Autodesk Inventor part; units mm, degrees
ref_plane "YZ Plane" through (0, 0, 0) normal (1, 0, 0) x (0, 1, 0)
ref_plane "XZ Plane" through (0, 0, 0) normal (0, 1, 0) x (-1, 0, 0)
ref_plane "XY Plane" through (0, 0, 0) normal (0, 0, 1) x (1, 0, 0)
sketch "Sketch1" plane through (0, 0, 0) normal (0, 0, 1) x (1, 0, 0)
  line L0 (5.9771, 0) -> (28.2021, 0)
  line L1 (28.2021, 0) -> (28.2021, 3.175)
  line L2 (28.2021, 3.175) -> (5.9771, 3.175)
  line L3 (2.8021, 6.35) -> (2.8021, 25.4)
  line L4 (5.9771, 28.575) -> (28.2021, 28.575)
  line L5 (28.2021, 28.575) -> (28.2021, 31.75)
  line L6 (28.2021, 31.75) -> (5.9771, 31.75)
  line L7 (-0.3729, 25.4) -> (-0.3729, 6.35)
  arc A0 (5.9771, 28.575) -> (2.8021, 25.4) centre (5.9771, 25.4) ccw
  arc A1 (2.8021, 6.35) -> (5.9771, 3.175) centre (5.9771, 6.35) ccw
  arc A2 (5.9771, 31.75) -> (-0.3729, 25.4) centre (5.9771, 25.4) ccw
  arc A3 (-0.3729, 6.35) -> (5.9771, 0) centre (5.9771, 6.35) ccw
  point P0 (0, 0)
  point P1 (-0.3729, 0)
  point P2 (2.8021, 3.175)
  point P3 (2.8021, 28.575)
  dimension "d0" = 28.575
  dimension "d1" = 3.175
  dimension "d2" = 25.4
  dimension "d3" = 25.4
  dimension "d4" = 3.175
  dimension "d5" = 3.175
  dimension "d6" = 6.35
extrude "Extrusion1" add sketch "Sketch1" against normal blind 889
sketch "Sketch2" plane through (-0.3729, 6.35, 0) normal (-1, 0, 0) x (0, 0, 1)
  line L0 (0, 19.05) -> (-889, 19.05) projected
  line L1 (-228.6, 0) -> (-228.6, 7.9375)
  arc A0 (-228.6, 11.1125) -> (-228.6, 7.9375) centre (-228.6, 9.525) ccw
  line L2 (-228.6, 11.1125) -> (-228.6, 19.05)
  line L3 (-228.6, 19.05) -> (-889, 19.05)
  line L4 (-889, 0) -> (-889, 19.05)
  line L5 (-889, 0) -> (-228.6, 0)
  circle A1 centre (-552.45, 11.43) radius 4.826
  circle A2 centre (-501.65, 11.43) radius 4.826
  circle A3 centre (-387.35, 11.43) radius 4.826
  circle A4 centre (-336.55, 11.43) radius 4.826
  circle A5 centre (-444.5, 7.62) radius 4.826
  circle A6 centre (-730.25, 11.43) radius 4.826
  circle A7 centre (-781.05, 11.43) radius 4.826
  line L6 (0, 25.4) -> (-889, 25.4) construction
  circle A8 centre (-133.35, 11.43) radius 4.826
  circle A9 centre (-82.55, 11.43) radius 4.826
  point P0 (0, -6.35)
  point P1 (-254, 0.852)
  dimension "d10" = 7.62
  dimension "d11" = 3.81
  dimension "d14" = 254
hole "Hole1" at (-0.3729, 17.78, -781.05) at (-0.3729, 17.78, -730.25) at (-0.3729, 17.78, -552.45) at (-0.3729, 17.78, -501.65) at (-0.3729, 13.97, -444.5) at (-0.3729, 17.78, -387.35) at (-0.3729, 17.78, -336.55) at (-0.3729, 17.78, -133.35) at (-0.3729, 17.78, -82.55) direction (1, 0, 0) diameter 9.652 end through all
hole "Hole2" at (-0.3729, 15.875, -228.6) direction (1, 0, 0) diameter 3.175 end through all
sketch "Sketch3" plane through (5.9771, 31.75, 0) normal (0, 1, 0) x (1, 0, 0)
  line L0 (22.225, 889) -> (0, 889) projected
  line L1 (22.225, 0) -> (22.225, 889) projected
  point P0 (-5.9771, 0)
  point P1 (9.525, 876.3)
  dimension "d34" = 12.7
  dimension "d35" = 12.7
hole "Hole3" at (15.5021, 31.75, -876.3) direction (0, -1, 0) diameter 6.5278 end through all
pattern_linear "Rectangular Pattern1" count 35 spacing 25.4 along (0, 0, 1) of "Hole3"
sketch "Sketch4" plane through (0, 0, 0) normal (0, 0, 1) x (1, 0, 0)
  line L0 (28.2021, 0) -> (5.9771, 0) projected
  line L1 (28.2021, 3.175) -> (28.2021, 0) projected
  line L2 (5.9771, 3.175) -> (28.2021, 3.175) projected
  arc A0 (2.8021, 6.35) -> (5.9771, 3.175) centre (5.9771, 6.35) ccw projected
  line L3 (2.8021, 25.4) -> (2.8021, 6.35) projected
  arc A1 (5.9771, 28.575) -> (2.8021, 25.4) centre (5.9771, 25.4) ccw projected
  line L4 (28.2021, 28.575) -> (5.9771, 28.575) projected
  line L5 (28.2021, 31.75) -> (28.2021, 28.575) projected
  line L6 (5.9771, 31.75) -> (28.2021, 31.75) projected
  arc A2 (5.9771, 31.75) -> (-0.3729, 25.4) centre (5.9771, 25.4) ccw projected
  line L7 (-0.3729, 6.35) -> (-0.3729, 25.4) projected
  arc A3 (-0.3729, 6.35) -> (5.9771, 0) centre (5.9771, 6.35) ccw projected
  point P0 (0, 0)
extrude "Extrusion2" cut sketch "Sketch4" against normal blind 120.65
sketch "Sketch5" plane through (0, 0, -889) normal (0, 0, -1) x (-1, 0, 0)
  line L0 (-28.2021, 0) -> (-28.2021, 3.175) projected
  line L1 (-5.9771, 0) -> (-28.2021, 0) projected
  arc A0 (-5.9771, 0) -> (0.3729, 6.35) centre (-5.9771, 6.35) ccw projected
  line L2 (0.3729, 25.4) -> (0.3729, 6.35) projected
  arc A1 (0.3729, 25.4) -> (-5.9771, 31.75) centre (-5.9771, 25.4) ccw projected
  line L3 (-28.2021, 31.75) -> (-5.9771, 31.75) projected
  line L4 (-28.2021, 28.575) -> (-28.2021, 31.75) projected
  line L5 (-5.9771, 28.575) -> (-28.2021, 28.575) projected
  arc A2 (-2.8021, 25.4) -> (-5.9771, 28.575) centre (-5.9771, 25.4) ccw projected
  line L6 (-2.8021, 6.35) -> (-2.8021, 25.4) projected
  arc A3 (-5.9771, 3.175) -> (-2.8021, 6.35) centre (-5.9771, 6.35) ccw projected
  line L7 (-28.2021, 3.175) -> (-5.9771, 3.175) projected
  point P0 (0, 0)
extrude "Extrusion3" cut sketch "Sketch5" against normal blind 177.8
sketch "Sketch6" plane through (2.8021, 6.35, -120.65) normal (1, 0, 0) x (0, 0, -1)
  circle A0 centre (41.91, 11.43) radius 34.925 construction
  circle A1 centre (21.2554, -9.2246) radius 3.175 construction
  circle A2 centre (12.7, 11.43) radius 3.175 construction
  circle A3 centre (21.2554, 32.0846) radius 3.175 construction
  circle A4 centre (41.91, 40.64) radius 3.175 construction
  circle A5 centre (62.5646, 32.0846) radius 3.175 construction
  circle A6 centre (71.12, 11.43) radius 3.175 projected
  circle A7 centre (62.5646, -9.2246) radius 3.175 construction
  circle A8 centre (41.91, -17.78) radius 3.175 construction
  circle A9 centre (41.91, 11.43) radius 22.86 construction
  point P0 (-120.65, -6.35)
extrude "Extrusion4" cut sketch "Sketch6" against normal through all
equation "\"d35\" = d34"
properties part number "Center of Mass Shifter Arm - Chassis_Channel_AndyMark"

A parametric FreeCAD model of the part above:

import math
import FreeCAD as App
import Part
import Sketcher
from FreeCAD import Vector
Q = App.Units.Quantity

doc = App.newDocument("Part")
body = doc.addObject("PartDesign::Body", "Body")

# Sketch on XY plane
sketch1 = body.newObject("Sketcher::SketchObject", "Sketch")
sketch1.AttachmentSupport = (doc.getObject("XY_Plane"), [""])
sketch1.MapMode = "FlatFace"
sketch1.addGeometry([
    Part.ArcOfCircle(Part.Circle(Vector(5.9771, 6.35, 0), Vector(0, 0, 1), 6.35), math.radians(180), math.radians(270)),  # 0
    Part.LineSegment(Vector(5.9771, 0, 0), Vector(28.2021, 0, 0)),  # 1
    Part.LineSegment(Vector(28.2021, 0, 0), Vector(28.2021, 3.175, 0)),  # 2
    Part.LineSegment(Vector(28.2021, 3.175, 0), Vector(5.9771, 3.175, 0)),  # 3
    Part.ArcOfCircle(Part.Circle(Vector(5.9771, 6.35, 0), Vector(0, 0, 1), 3.175), math.radians(180), math.radians(270)),  # 4
    Part.LineSegment(Vector(2.8021, 6.35, 0), Vector(2.8021, 25.4, 0)),  # 5
    Part.ArcOfCircle(Part.Circle(Vector(5.9771, 25.4, 0), Vector(0, 0, 1), 3.175), math.radians(90), math.radians(180)),  # 6
    Part.LineSegment(Vector(5.9771, 28.575, 0), Vector(28.2021, 28.575, 0)),  # 7
    Part.LineSegment(Vector(28.2021, 28.575, 0), Vector(28.2021, 31.75, 0)),  # 8
    Part.LineSegment(Vector(28.2021, 31.75, 0), Vector(5.9771, 31.75, 0)),  # 9
    Part.ArcOfCircle(Part.Circle(Vector(5.9771, 25.4, 0), Vector(0, 0, 1), 6.35), math.radians(90), math.radians(180)),  # 10
    Part.LineSegment(Vector(-0.3729, 25.4, 0), Vector(-0.3729, 6.35, 0)),  # 11
], False)
sketch1.addConstraint([
    Sketcher.Constraint("Tangent", 0, 2, 1, 1),
    Sketcher.Constraint("Coincident", 1, 2, 2, 1),
    Sketcher.Constraint("Coincident", 2, 2, 3, 1),
    Sketcher.Constraint("Tangent", 3, 2, 4, 2),
    Sketcher.Constraint("Tangent", 4, 1, 5, 1),
    Sketcher.Constraint("Tangent", 5, 2, 6, 2),
    Sketcher.Constraint("Tangent", 6, 1, 7, 1),
    Sketcher.Constraint("Coincident", 7, 2, 8, 1),
    Sketcher.Constraint("Coincident", 8, 2, 9, 1),
    Sketcher.Constraint("Tangent", 9, 2, 10, 1),
    Sketcher.Constraint("Tangent", 10, 2, 11, 1),
    Sketcher.Constraint("Tangent", 11, 2, 0, 1),
    Sketcher.Constraint("Horizontal", 1),
    Sketcher.Constraint("Vertical", 2),
    Sketcher.Constraint("Horizontal", 3),
    Sketcher.Constraint("Vertical", 5),
    Sketcher.Constraint("Horizontal", 7),
    Sketcher.Constraint("Vertical", 8),
    Sketcher.Constraint("Horizontal", 9),
    Sketcher.Constraint("Vertical", 11),
    Sketcher.Constraint("Coincident", 4, 3, 0, 3),
    Sketcher.Constraint("Coincident", 10, 3, 6, 3),
    Sketcher.Constraint("Equal", 4, 6),
    Sketcher.Constraint("PointOnObject", 0, 2, -1),
    Sketcher.Constraint("Vertical", 2, 2, 7, 2),
    Sketcher.Constraint("Radius", 0, Q("0.25 in")),
    Sketcher.Constraint("DistanceY", -1, 1, 6, 3, Q("1 in")),
    Sketcher.Constraint("Radius", 4, Q("0.125 in")),
    Sketcher.Constraint("DistanceX", 5, 2, 7, 2, Q("1 in")),
    Sketcher.Constraint("DistanceX", -1, 1, 0, 3, Q("5.977 mm")),
])
pad1 = body.newObject("PartDesign::Pad", "Pad")
pad1.Profile = sketch1
pad1.Length = Q("35 in")
pad1.Reversed = True

# Sketch on YZ plane
sketch2 = body.newObject("Sketcher::SketchObject", "Sketch001")
sketch2.AttachmentSupport = (doc.getObject("YZ_Plane"), [""])
sketch2.MapMode = "FlatFace"
sketch2.AttachmentOffset = App.Placement(Vector(0, 0, -0.3729), App.Rotation())
sketch2.addGeometry([
    Part.Circle(Vector(17.78, -781.05, 0), Vector(0, 0, 1), 4.826),  # 0
    Part.Circle(Vector(17.78, -730.25, 0), Vector(0, 0, 1), 4.826),  # 1
    Part.Circle(Vector(17.78, -552.45, 0), Vector(0, 0, 1), 4.826),  # 2
    Part.Circle(Vector(17.78, -501.65, 0), Vector(0, 0, 1), 4.826),  # 3
    Part.Circle(Vector(13.97, -444.5, 0), Vector(0, 0, 1), 4.826),  # 4
    Part.Circle(Vector(17.78, -387.35, 0), Vector(0, 0, 1), 4.826),  # 5
    Part.Circle(Vector(17.78, -336.55, 0), Vector(0, 0, 1), 4.826),  # 6
    Part.Circle(Vector(17.78, -133.35, 0), Vector(0, 0, 1), 4.826),  # 7
    Part.Circle(Vector(17.78, -82.55, 0), Vector(0, 0, 1), 4.826),  # 8
], False)
sketch2.addConstraint([
    Sketcher.Constraint("Equal", 0, 1),
    Sketcher.Constraint("Equal", 1, 2),
    Sketcher.Constraint("Equal", 2, 3),
    Sketcher.Constraint("Equal", 3, 4),
    Sketcher.Constraint("Equal", 4, 5),
    Sketcher.Constraint("Equal", 5, 6),
    Sketcher.Constraint("Equal", 6, 7),
    Sketcher.Constraint("Equal", 7, 8),
    Sketcher.Constraint("Vertical", 0, 3, 1, 3),
    Sketcher.Constraint("Vertical", 1, 3, 2, 3),
    Sketcher.Constraint("Vertical", 2, 3, 3, 3),
    Sketcher.Constraint("Vertical", 3, 3, 5, 3),
    Sketcher.Constraint("Vertical", 5, 3, 6, 3),
    Sketcher.Constraint("Vertical", 6, 3, 7, 3),
    Sketcher.Constraint("Vertical", 7, 3, 8, 3),
    Sketcher.Constraint("Diameter", 0, Q("0.38 in")),
    Sketcher.Constraint("DistanceY", 0, 3, 1, 3, Q("2 in")),
    Sketcher.Constraint("DistanceY", 1, 3, 2, 3, Q("7 in")),
    Sketcher.Constraint("DistanceY", 2, 3, 3, 3, Q("2 in")),
    Sketcher.Constraint("DistanceY", 5, 3, 6, 3, Q("2 in")),
    Sketcher.Constraint("DistanceY", 6, 3, 7, 3, Q("8 in")),
    Sketcher.Constraint("DistanceY", 7, 3, 8, 3, Q("2 in")),
    Sketcher.Constraint("DistanceX", -1, 1, 0, 3, Q("0.7 in")),
    Sketcher.Constraint("DistanceY", 4, 3, -1, 1, Q("17.5 in")),
    Sketcher.Constraint("DistanceY", 3, 3, 5, 3, Q("4.5 in")),
    Sketcher.Constraint("DistanceY", 0, 3, -1, 1, Q("30.75 in")),
    Sketcher.Constraint("DistanceX", -1, 1, 4, 3, Q("0.55 in")),
])
doc.recompute()
hole = body.newObject("PartDesign::Hole", "Hole")
hole.Profile = sketch2
hole.ThreadType = "None"
hole.Diameter = Q("0.38 in")
hole.DepthType = "ThroughAll"
hole.Reversed = True

# Sketch on YZ plane
sketch3 = body.newObject("Sketcher::SketchObject", "Sketch002")
sketch3.AttachmentSupport = (doc.getObject("YZ_Plane"), [""])
sketch3.MapMode = "FlatFace"
sketch3.AttachmentOffset = App.Placement(Vector(0, 0, -0.3729), App.Rotation())
sketch3.addGeometry(Part.Circle(Vector(15.875, -228.6, 0), Vector(0, 0, 1), 1.5875), False)
sketch3.addConstraint([
    Sketcher.Constraint("Diameter", 0, Q("0.125 in")),
    Sketcher.Constraint("DistanceY", 0, 3, -1, 1, Q("9 in")),
    Sketcher.Constraint("DistanceX", -1, 1, 0, 3, Q("0.625 in")),
])
doc.recompute()
hole2 = body.newObject("PartDesign::Hole", "Hole001")
hole2.Profile = sketch3
hole2.ThreadType = "None"
hole2.Diameter = Q("0.125 in")
hole2.DepthType = "ThroughAll"
hole2.Reversed = True

# Sketch on XZ plane
sketch4 = body.newObject("Sketcher::SketchObject", "Sketch003")
sketch4.AttachmentSupport = (doc.getObject("XZ_Plane"), [""])
sketch4.MapMode = "FlatFace"
sketch4.AttachmentOffset = App.Placement(Vector(0, 0, -1.25 * 25.4), App.Rotation())
sketch4.addGeometry(Part.Circle(Vector(15.5021, -876.3, 0), Vector(0, 0, 1), 3.2639), False)
sketch4.addConstraint([
    Sketcher.Constraint("Diameter", 0, Q("0.257 in")),
    Sketcher.Constraint("DistanceY", 0, 3, -1, 1, Q("34.5 in")),
    Sketcher.Constraint("DistanceX", -1, 1, 0, 3, Q("15.502 mm")),
])
doc.recompute()
hole3 = body.newObject("PartDesign::Hole", "Hole002")
hole3.Profile = sketch4
hole3.ThreadType = "None"
hole3.Diameter = Q("0.257 in")
hole3.DepthType = "ThroughAll"
hole3.Reversed = True
doc.recompute()

linearpattern = body.newObject("PartDesign::LinearPattern", "LinearPattern")
linearpattern.Originals = [hole3]
linearpattern.Direction = (doc.getObject("Z_Axis"), [""])
linearpattern.Mode = "offset"
linearpattern.Offset = Q("1 in")
linearpattern.Occurrences = 35
body.Tip = linearpattern

# Sketch on XY plane
sketch5 = body.newObject("Sketcher::SketchObject", "Sketch004")
sketch5.AttachmentSupport = (doc.getObject("XY_Plane"), [""])
sketch5.MapMode = "FlatFace"
sketch5.addGeometry([
    Part.LineSegment(Vector(5.9771, 0, 0), Vector(28.2021, 0, 0)),  # 0
    Part.LineSegment(Vector(28.2021, 0, 0), Vector(28.2021, 3.175, 0)),  # 1
    Part.LineSegment(Vector(28.2021, 3.175, 0), Vector(5.9771, 3.175, 0)),  # 2
    Part.ArcOfCircle(Part.Circle(Vector(5.9771, 6.35, 0), Vector(0, 0, 1), 3.175), math.radians(180), math.radians(270)),  # 3
    Part.LineSegment(Vector(2.8021, 6.35, 0), Vector(2.8021, 25.4, 0)),  # 4
    Part.ArcOfCircle(Part.Circle(Vector(5.9771, 25.4, 0), Vector(0, 0, 1), 3.175), math.radians(90), math.radians(180)),  # 5
    Part.LineSegment(Vector(5.9771, 28.575, 0), Vector(28.2021, 28.575, 0)),  # 6
    Part.LineSegment(Vector(28.2021, 28.575, 0), Vector(28.2021, 31.75, 0)),  # 7
    Part.LineSegment(Vector(28.2021, 31.75, 0), Vector(5.9771, 31.75, 0)),  # 8
    Part.ArcOfCircle(Part.Circle(Vector(5.9771, 25.4, 0), Vector(0, 0, 1), 6.35), math.radians(90), math.radians(180)),  # 9
    Part.LineSegment(Vector(-0.3729, 25.4, 0), Vector(-0.3729, 6.35, 0)),  # 10
    Part.ArcOfCircle(Part.Circle(Vector(5.9771, 6.35, 0), Vector(0, 0, 1), 6.35), math.radians(180), math.radians(270)),  # 11
], False)
sketch5.addConstraint([
    Sketcher.Constraint("Coincident", 0, 2, 1, 1),
    Sketcher.Constraint("Coincident", 1, 2, 2, 1),
    Sketcher.Constraint("Tangent", 2, 2, 3, 2),
    Sketcher.Constraint("Tangent", 3, 1, 4, 1),
    Sketcher.Constraint("Tangent", 4, 2, 5, 2),
    Sketcher.Constraint("Tangent", 5, 1, 6, 1),
    Sketcher.Constraint("Coincident", 6, 2, 7, 1),
    Sketcher.Constraint("Coincident", 7, 2, 8, 1),
    Sketcher.Constraint("Tangent", 8, 2, 9, 1),
    Sketcher.Constraint("Tangent", 9, 2, 10, 1),
    Sketcher.Constraint("Tangent", 10, 2, 11, 1),
    Sketcher.Constraint("Tangent", 11, 2, 0, 1),
    Sketcher.Constraint("Horizontal", 0),
    Sketcher.Constraint("Vertical", 1),
    Sketcher.Constraint("Horizontal", 2),
    Sketcher.Constraint("Vertical", 4),
    Sketcher.Constraint("Horizontal", 6),
    Sketcher.Constraint("Vertical", 7),
    Sketcher.Constraint("Horizontal", 8),
    Sketcher.Constraint("Vertical", 10),
    Sketcher.Constraint("Coincident", 9, 3, 5, 3),
    Sketcher.Constraint("Coincident", 11, 3, 3, 3),
    Sketcher.Constraint("Equal", 3, 5),
    Sketcher.Constraint("PointOnObject", 0, 2, -1),
    Sketcher.Constraint("Vertical", 1, 2, 6, 2),
    Sketcher.Constraint("Radius", 9, Q("0.25 in")),
    Sketcher.Constraint("DistanceY", -1, 1, 5, 3, Q("1 in")),
    Sketcher.Constraint("Radius", 3, Q("0.125 in")),
    Sketcher.Constraint("DistanceX", 4, 2, 6, 2, Q("1 in")),
    Sketcher.Constraint("DistanceX", -1, 1, 3, 3, Q("5.977 mm")),
])
pocket1 = body.newObject("PartDesign::Pocket", "Pocket")
pocket1.Profile = sketch5
pocket1.Length = Q("4.75 in")

# Sketch on XY plane
sketch6 = body.newObject("Sketcher::SketchObject", "Sketch005")
sketch6.AttachmentSupport = (doc.getObject("XY_Plane"), [""])
sketch6.MapMode = "FlatFace"
sketch6.AttachmentOffset = App.Placement(Vector(0, 0, -35 * 25.4), App.Rotation())
sketch6.addGeometry([
    Part.LineSegment(Vector(28.2021, 3.175, 0), Vector(28.2021, 0, 0)),  # 0
    Part.LineSegment(Vector(28.2021, 0, 0), Vector(5.9771, 0, 0)),  # 1
    Part.ArcOfCircle(Part.Circle(Vector(5.9771, 6.35, 0), Vector(0, 0, 1), 6.35), math.radians(180), math.radians(270)),  # 2
    Part.LineSegment(Vector(-0.3729, 6.35, 0), Vector(-0.3729, 25.4, 0)),  # 3
    Part.ArcOfCircle(Part.Circle(Vector(5.9771, 25.4, 0), Vector(0, 0, 1), 6.35), math.radians(90), math.radians(180)),  # 4
    Part.LineSegment(Vector(5.9771, 31.75, 0), Vector(28.2021, 31.75, 0)),  # 5
    Part.LineSegment(Vector(28.2021, 31.75, 0), Vector(28.2021, 28.575, 0)),  # 6
    Part.LineSegment(Vector(28.2021, 28.575, 0), Vector(5.9771, 28.575, 0)),  # 7
    Part.ArcOfCircle(Part.Circle(Vector(5.9771, 25.4, 0), Vector(0, 0, 1), 3.175), math.radians(90), math.radians(180)),  # 8
    Part.LineSegment(Vector(2.8021, 25.4, 0), Vector(2.8021, 6.35, 0)),  # 9
    Part.ArcOfCircle(Part.Circle(Vector(5.9771, 6.35, 0), Vector(0, 0, 1), 3.175), math.radians(180), math.radians(270)),  # 10
    Part.LineSegment(Vector(5.9771, 3.175, 0), Vector(28.2021, 3.175, 0)),  # 11
], False)
sketch6.addConstraint([
    Sketcher.Constraint("Coincident", 0, 2, 1, 1),
    Sketcher.Constraint("Tangent", 1, 2, 2, 2),
    Sketcher.Constraint("Tangent", 2, 1, 3, 1),
    Sketcher.Constraint("Tangent", 3, 2, 4, 2),
    Sketcher.Constraint("Tangent", 4, 1, 5, 1),
    Sketcher.Constraint("Coincident", 5, 2, 6, 1),
    Sketcher.Constraint("Coincident", 6, 2, 7, 1),
    Sketcher.Constraint("Tangent", 7, 2, 8, 1),
    Sketcher.Constraint("Tangent", 8, 2, 9, 1),
    Sketcher.Constraint("Tangent", 9, 2, 10, 1),
    Sketcher.Constraint("Tangent", 10, 2, 11, 1),
    Sketcher.Constraint("Coincident", 11, 2, 0, 1),
    Sketcher.Constraint("Vertical", 0),
    Sketcher.Constraint("Horizontal", 1),
    Sketcher.Constraint("Vertical", 3),
    Sketcher.Constraint("Horizontal", 5),
    Sketcher.Constraint("Vertical", 6),
    Sketcher.Constraint("Horizontal", 7),
    Sketcher.Constraint("Vertical", 9),
    Sketcher.Constraint("Horizontal", 11),
    Sketcher.Constraint("Coincident", 8, 3, 4, 3),
    Sketcher.Constraint("Coincident", 10, 3, 2, 3),
    Sketcher.Constraint("Equal", 2, 4),
    Sketcher.Constraint("PointOnObject", 0, 2, -1),
    Sketcher.Constraint("Vertical", 0, 2, 5, 2),
    Sketcher.Constraint("Radius", 2, Q("0.25 in")),
    Sketcher.Constraint("DistanceY", -1, 1, 4, 3, Q("1 in")),
    Sketcher.Constraint("Radius", 8, Q("0.125 in")),
    Sketcher.Constraint("DistanceX", 1, 2, 1, 1, Q("0.875 in")),
    Sketcher.Constraint("DistanceX", -1, 1, 2, 3, Q("5.977 mm")),
])
pocket2 = body.newObject("PartDesign::Pocket", "Pocket001")
pocket2.Profile = sketch6
pocket2.Length = Q("7 in")
pocket2.Reversed = True

# Sketch on YZ plane
sketch7 = body.newObject("Sketcher::SketchObject", "Sketch006")
sketch7.AttachmentSupport = (doc.getObject("YZ_Plane"), [""])
sketch7.MapMode = "FlatFace"
sketch7.AttachmentOffset = App.Placement(Vector(0, 0, 2.8021), App.Rotation())
sketch7.addGeometry(Part.Circle(Vector(17.78, -191.77, 0), Vector(0, 0, 1), 3.175), False)
sketch7.addConstraint([
    Sketcher.Constraint("Diameter", 0, Q("0.25 in")),
    Sketcher.Constraint("DistanceX", -1, 1, 0, 3, Q("0.7 in")),
    Sketcher.Constraint("DistanceY", 0, 3, -1, 1, Q("7.55 in")),
])
pocket3 = body.newObject("PartDesign::Pocket", "Pocket002")
pocket3.Profile = sketch7
pocket3.Type = "ThroughAll"

doc.recompute()
